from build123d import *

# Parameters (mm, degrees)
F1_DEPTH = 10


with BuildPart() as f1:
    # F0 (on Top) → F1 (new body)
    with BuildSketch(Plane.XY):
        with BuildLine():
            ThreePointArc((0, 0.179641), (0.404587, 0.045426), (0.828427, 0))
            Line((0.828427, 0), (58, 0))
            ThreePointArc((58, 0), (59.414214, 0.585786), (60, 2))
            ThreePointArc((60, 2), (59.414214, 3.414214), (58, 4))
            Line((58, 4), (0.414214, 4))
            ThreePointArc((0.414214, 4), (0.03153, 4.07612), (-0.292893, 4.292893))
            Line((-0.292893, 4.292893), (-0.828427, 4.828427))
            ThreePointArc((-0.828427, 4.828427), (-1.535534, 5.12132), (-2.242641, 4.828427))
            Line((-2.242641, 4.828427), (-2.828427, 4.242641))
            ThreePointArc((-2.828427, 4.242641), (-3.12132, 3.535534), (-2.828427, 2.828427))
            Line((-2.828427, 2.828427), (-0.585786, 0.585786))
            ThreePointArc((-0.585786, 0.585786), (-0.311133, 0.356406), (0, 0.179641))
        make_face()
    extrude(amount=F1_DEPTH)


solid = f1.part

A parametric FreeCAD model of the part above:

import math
import FreeCAD as App
import Part
import Sketcher
from FreeCAD import Vector
Q = App.Units.Quantity

doc = App.newDocument("Part")
body = doc.addObject("PartDesign::Body", "Body")

sketch1 = doc.addObject("Sketcher::SketchObject", "Sketch")
body.addObject(sketch1)
sketch1.AttachmentSupport = (doc.XY_Plane, [""])
sketch1.MapMode = "FlatFace"
sketch1.addGeometry([
    Part.ArcOfCircle(Part.Circle(Vector(0.8, 2, 0), Vector(0, 0, 1), 2), math.radians(-114), math.radians(-90)),
    Part.LineSegment(Vector(0.8, 0, 0), Vector(58, 0, 0)),
    Part.ArcOfCircle(Part.Circle(Vector(58, 2, 0), Vector(0, 0, 1), 2), math.radians(-90), math.radians(0)),
    Part.ArcOfCircle(Part.Circle(Vector(58, 2, 0), Vector(0, 0, 1), 2), math.radians(0), math.radians(90)),
    Part.LineSegment(Vector(58, 4, 0), Vector(0.4, 4, 0)),
    Part.ArcOfCircle(Part.Circle(Vector(0.4, 5, 0), Vector(0, 0, 1), 1), math.radians(-135), math.radians(-90)),
    Part.LineSegment(Vector(-0.3, 4.3, 0), Vector(-0.8, 4.8, 0)),
    Part.ArcOfCircle(Part.Circle(Vector(-1.5, 4.1, 0), Vector(0, 0, 1), 1), math.radians(45), math.radians(135)),
    Part.LineSegment(Vector(-2.2, 4.8, 0), Vector(-2.8, 4.2, 0)),
    Part.ArcOfCircle(Part.Circle(Vector(-2.1, 3.5, 0), Vector(0, 0, 1), 1), math.radians(135), math.radians(225)),
    Part.LineSegment(Vector(-2.8, 2.8, 0), Vector(-0.6, 0.6, 0)),
    Part.ArcOfCircle(Part.Circle(Vector(0.8, 2, 0), Vector(0, 0, 1), 2), math.radians(-135), math.radians(-114)),
], False)
sketch1.addConstraint([
    Sketcher.Constraint("Tangent", 0, 2, 1, 1),
    Sketcher.Constraint("Tangent", 1, 2, 2, 1),
    Sketcher.Constraint("Tangent", 2, 2, 3, 1),
    Sketcher.Constraint("Tangent", 3, 2, 4, 1),
    Sketcher.Constraint("Coincident", 4, 2, 5, 2),
    Sketcher.Constraint("Coincident", 5, 1, 6, 1),
    Sketcher.Constraint("Tangent", 6, 2, 7, 1),
    Sketcher.Constraint("Tangent", 7, 2, 8, 1),
    Sketcher.Constraint("Tangent", 8, 2, 9, 1),
    Sketcher.Constraint("Tangent", 9, 2, 10, 1),
    Sketcher.Constraint("Tangent", 10, 2, 11, 1),
    Sketcher.Constraint("Tangent", 11, 2, 0, 1),
    Sketcher.Constraint("Horizontal", 1),
    Sketcher.Constraint("Horizontal", 4),
    Sketcher.Constraint("Equal", 2, 3),
    Sketcher.Constraint("Equal", 7, 9),
    Sketcher.Constraint("PointOnObject", 0, 2, -1),
    Sketcher.Constraint("PointOnObject", 11, 2, -2),
    Sketcher.Constraint("Perpendicular", 6, 8),
    Sketcher.Constraint("Perpendicular", 8, 10),
    Sketcher.Constraint("Horizontal", 3, 3, 2, 2),
    Sketcher.Constraint("Horizontal", 6, 2, 7, 2),
    Sketcher.Constraint("Radius", 2, Q("1.999999 mm")),
    Sketcher.Constraint("Radius", 7, Q("1.000001 mm")),
    Sketcher.Constraint("DistanceX", -1, 1, 2, 3, Q("58.000001 mm")),
    Sketcher.Constraint("DistanceX", 8, 2, 6, 2, Q("2 mm")),
    Sketcher.Constraint("Radius", 0, Q("1.999991 mm")),
    Sketcher.Constraint("Radius", 11, Q("2.00001 mm")),
    Sketcher.Constraint("Radius", 5, Q("0.999994 mm")),
    Sketcher.Constraint("DistanceY", 5, 1, 5, 3, Q("0.707101 mm")),
    Sketcher.Constraint("Distance", 6, Q("0.757359 mm")),
    Sketcher.Constraint("DistanceX", 1, 1, 1, 2, Q("57.171573 mm")),
    Sketcher.Constraint("DistanceX", 4, 2, 4, 1, Q("57.585786 mm")),
])
pad1 = doc.addObject("PartDesign::Pad", "Pad")
body.addObject(pad1)
pad1.Profile = sketch1
pad1.Length = 10

doc.recompute()
